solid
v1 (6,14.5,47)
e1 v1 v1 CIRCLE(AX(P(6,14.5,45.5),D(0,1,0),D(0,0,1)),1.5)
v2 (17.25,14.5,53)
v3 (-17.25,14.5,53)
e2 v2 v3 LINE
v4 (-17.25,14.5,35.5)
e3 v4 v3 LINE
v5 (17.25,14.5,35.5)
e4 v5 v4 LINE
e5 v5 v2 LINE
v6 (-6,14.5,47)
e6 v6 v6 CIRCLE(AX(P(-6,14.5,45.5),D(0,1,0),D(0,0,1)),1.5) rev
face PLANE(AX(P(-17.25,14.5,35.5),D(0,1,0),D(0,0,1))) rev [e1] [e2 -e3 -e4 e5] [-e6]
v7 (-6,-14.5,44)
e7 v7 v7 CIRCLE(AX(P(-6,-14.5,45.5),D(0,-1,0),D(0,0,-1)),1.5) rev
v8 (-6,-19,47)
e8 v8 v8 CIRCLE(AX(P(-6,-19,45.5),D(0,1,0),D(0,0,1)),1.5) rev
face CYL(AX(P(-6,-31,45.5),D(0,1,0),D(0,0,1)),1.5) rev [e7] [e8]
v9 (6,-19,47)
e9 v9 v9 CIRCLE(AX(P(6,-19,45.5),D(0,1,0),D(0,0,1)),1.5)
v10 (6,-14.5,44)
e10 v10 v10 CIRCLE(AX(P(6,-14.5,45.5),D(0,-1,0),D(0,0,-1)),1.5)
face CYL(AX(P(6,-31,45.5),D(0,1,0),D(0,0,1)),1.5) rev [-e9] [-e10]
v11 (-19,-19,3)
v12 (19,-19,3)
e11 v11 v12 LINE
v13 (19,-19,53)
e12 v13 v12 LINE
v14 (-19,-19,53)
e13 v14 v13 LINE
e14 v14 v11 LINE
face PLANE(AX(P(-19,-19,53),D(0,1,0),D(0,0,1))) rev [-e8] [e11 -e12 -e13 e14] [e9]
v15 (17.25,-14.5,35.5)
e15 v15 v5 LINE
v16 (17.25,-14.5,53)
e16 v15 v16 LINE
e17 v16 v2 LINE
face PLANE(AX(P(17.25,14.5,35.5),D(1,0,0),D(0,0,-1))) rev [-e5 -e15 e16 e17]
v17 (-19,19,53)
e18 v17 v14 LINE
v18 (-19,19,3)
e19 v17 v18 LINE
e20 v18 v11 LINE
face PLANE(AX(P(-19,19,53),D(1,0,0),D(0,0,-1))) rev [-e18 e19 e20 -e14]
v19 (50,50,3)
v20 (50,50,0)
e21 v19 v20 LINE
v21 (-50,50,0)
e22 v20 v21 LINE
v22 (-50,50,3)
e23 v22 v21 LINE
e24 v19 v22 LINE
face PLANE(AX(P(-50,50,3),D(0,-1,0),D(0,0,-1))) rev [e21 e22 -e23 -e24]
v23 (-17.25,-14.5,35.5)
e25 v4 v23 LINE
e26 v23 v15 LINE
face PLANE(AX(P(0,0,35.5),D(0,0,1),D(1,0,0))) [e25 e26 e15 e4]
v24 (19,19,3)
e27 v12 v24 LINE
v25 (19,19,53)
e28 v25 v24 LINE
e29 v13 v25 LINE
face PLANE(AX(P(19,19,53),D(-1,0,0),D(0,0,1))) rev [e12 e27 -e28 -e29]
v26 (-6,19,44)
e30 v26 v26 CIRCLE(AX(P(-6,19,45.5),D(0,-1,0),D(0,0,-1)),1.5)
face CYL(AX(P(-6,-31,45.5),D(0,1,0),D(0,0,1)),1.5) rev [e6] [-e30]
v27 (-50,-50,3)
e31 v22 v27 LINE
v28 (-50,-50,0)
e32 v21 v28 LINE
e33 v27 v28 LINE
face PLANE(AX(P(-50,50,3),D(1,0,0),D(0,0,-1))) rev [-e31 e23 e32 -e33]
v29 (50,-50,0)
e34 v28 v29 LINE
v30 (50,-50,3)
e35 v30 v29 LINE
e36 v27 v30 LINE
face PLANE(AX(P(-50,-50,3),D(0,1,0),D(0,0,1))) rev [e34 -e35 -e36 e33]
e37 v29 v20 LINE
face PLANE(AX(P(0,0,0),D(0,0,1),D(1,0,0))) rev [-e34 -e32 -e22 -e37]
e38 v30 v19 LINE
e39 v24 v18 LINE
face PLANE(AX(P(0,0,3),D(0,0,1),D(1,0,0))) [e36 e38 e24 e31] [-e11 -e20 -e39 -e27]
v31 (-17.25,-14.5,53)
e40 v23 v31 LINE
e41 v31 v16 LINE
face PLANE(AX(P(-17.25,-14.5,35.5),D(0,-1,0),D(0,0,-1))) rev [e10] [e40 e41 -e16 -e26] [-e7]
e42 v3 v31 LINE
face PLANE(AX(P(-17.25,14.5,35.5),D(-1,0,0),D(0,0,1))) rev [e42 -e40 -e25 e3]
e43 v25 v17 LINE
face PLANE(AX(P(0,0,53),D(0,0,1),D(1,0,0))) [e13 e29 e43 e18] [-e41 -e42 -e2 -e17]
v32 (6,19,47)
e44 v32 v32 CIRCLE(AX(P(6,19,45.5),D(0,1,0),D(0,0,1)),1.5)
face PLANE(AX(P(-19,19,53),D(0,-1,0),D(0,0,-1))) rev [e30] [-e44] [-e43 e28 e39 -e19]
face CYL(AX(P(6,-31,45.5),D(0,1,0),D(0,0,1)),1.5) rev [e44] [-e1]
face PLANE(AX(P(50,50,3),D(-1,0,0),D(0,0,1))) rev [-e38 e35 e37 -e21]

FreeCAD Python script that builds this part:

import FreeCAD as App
import Part
import Sketcher
from FreeCAD import Vector
Q = App.Units.Quantity


def add_polygon(sketch, points):
    """Adds a closed chain of lines whose ends are joined by coincident constraints."""
    first, n = sketch.GeometryCount, len(points)
    for a, b in zip(points, points[1:] + points[:1]):
        sketch.addGeometry(Part.LineSegment(App.Vector(*a, 0), App.Vector(*b, 0)), False)
    for i in range(n):
        sketch.addConstraint(Sketcher.Constraint("Coincident", first + i, 2, first + (i + 1) % n, 1))

doc = App.newDocument("Part")
params = doc.addObject("Spreadsheet::Sheet", "Params")
for row, (alias, value) in enumerate([
    ("sketch1_width", "100 mm"),
    ("pad1_length", "3 mm"),
    ("sketch2_width", "38 mm"),
    ("pad2_length", "50 mm"),
    ("sketch3_height", "29 mm"),
    ("sketch3_width", "34.5 mm"),
    ("pocket1_length", "17.5 mm"),
    ("sketch4_diameter", "3 mm"),
    ("pocket2_length", "50 mm"),
], start=1):
    params.set(f"A{row}", alias)
    params.set(f"B{row}", "=" + value)
    params.setAlias(f"B{row}", alias)

body = doc.addObject("PartDesign::Body", "Body")

sketch1 = doc.addObject("Sketcher::SketchObject", "Sketch")
body.addObject(sketch1)
sketch1.AttachmentSupport = (doc.XY_Plane, [""])
sketch1.MapMode = "FlatFace"
add_polygon(sketch1, [(-50, 50), (-50, -50), (50, -50), (50, 50)])
sketch1.addConstraint([
    Sketcher.Constraint("Vertical", 0),
    Sketcher.Constraint("Horizontal", 1),
    Sketcher.Constraint("Vertical", 2),
    Sketcher.Constraint("Horizontal", 3),
    Sketcher.Constraint("Symmetric", 0, 2, 2, 2, -1, 1),
    Sketcher.Constraint("Equal", 3, 0),
    Sketcher.Constraint("DistanceX", 1, 1, 1, 2, Q("100 mm")),
])
sketch1.setExpression("Constraints[10]", "Params.sketch1_width")
pad1 = doc.addObject("PartDesign::Pad", "Pad")
body.addObject(pad1)
pad1.Profile = sketch1
pad1.setExpression("Length", "Params.pad1_length")

sketch2 = doc.addObject("Sketcher::SketchObject", "Sketch001")
body.addObject(sketch2)
sketch2.AttachmentSupport = (doc.XY_Plane, [""])
sketch2.MapMode = "FlatFace"
sketch2.AttachmentOffset = App.Placement(Vector(0, 0, 3), App.Rotation())
add_polygon(sketch2, [(-19, 19), (-19, -19), (19, -19), (19, 19)])
sketch2.addConstraint([
    Sketcher.Constraint("Vertical", 0),
    Sketcher.Constraint("Horizontal", 1),
    Sketcher.Constraint("Vertical", 2),
    Sketcher.Constraint("Horizontal", 3),
    Sketcher.Constraint("Symmetric", 0, 2, 2, 2, -1, 1),
    Sketcher.Constraint("Equal", 3, 0),
    Sketcher.Constraint("DistanceX", 1, 1, 1, 2, Q("38 mm")),
])
sketch2.setExpression("Constraints[10]", "Params.sketch2_width")
pad2 = doc.addObject("PartDesign::Pad", "Pad001")
body.addObject(pad2)
pad2.Profile = sketch2
pad2.setExpression("Length", "Params.pad2_length")

sketch3 = doc.addObject("Sketcher::SketchObject", "Sketch002")
body.addObject(sketch3)
sketch3.AttachmentSupport = (doc.XY_Plane, [""])
sketch3.MapMode = "FlatFace"
sketch3.AttachmentOffset = App.Placement(Vector(0, 0, 53), App.Rotation())
add_polygon(sketch3, [(-17, 14), (-17, -14), (17, -14), (17, 14)])
sketch3.addConstraint([
    Sketcher.Constraint("Vertical", 0),
    Sketcher.Constraint("Horizontal", 1),
    Sketcher.Constraint("Vertical", 2),
    Sketcher.Constraint("Horizontal", 3),
    Sketcher.Constraint("Symmetric", 0, 2, 2, 2, -1, 1),
    Sketcher.Constraint("DistanceY", 0, 2, 0, 1, Q("29 mm")),
    Sketcher.Constraint("DistanceX", 1, 1, 1, 2, Q("34.5 mm")),
])
sketch3.setExpression("Constraints[9]", "Params.sketch3_height")
sketch3.setExpression("Constraints[10]", "Params.sketch3_width")
pocket1 = doc.addObject("PartDesign::Pocket", "Pocket")
body.addObject(pocket1)
pocket1.Profile = sketch3
pocket1.setExpression("Length", "Params.pocket1_length")

sketch4 = doc.addObject("Sketcher::SketchObject", "Sketch003")
body.addObject(sketch4)
sketch4.AttachmentSupport = (doc.XZ_Plane, [""])
sketch4.MapMode = "FlatFace"
sketch4.AttachmentOffset = App.Placement(Vector(0, 0, -19), App.Rotation())
sketch4.addGeometry([
    Part.Circle(Vector(6, 45.5, 0), Vector(0, 0, 1), 1.5),
    Part.Circle(Vector(-6, 45.5, 0), Vector(0, 0, 1), 1.5),
], False)
sketch4.addConstraint([
    Sketcher.Constraint("Equal", 0, 1),
    Sketcher.Constraint("Symmetric", 0, 3, 1, 3, -2),
    Sketcher.Constraint("Diameter", 0, Q("3 mm")),
    Sketcher.Constraint("DistanceX", -1, 1, 0, 3, Q("6 mm")),
    Sketcher.Constraint("DistanceY", -1, 1, 0, 3, Q("45.5 mm")),
])
sketch4.setExpression("Constraints[2]", "Params.sketch4_diameter")
pocket2 = doc.addObject("PartDesign::Pocket", "Pocket001")
body.addObject(pocket2)
pocket2.Profile = sketch4
pocket2.setExpression("Length", "Params.pocket2_length")
pocket2.Reversed = True

doc.recompute()
